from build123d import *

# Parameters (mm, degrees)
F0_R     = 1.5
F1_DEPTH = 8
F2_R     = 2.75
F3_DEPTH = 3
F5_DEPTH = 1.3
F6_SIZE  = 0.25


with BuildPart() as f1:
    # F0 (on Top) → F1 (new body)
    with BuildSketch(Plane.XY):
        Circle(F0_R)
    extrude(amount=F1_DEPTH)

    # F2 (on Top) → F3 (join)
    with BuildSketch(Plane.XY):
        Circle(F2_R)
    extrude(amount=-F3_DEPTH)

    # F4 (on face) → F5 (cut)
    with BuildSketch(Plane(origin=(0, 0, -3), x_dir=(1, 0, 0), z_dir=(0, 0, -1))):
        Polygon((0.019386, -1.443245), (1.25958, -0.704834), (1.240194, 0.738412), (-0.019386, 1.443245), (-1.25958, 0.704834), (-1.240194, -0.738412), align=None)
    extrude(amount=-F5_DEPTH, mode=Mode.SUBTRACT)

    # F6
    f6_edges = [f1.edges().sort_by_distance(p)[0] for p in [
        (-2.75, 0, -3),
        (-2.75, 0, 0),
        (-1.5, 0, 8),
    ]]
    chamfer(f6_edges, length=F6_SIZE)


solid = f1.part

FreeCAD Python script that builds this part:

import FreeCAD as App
import Part
import Sketcher
from FreeCAD import Vector


def edges_at(feature, points):
    """Names of the edges that pass closest to the given points."""
    edges = feature.Shape.Edges
    near = lambda p: min(range(len(edges)), key=lambda i: edges[i].distToShape(Part.Vertex(*p))[0])
    return sorted({f"Edge{near(p) + 1}" for p in points})


def add_polygon(sketch, points):
    """Adds a closed chain of lines whose ends are joined by coincident constraints."""
    first, n = sketch.GeometryCount, len(points)
    for a, b in zip(points, points[1:] + points[:1]):
        sketch.addGeometry(Part.LineSegment(App.Vector(*a, 0), App.Vector(*b, 0)), False)
    for i in range(n):
        sketch.addConstraint(Sketcher.Constraint("Coincident", first + i, 2, first + (i + 1) % n, 1))

doc = App.newDocument("Part")
body = doc.addObject("PartDesign::Body", "Body")

# Sketch on XY plane
sketch1 = body.newObject("Sketcher::SketchObject", "Sketch")
sketch1.AttachmentSupport = (doc.getObject("XY_Plane"), [""])
sketch1.MapMode = "FlatFace"
sketch1.addGeometry(Part.Circle(Vector(0, 0, 0), Vector(0, 0, 1), 1.5), False)
sketch1.addConstraint([
    Sketcher.Constraint("Coincident", 0, 3, -1, 1),
    Sketcher.Constraint("Diameter", 0, 3.0),
])
pad1 = body.newObject("PartDesign::Pad", "Pad")
pad1.Profile = sketch1
pad1.Length = 8

# Sketch on XY plane
sketch2 = body.newObject("Sketcher::SketchObject", "Sketch001")
sketch2.AttachmentSupport = (doc.getObject("XY_Plane"), [""])
sketch2.MapMode = "FlatFace"
sketch2.addGeometry(Part.Circle(Vector(0, 0, 0), Vector(0, 0, 1), 2.8), False)
sketch2.addConstraint([
    Sketcher.Constraint("Coincident", 0, 3, -1, 1),
    Sketcher.Constraint("Diameter", 0, 5.5),
])
pad2 = body.newObject("PartDesign::Pad", "Pad001")
pad2.Profile = sketch2
pad2.Length = 3
pad2.Reversed = True

# Sketch on XY plane
sketch3 = body.newObject("Sketcher::SketchObject", "Sketch002")
sketch3.AttachmentSupport = (doc.getObject("XY_Plane"), [""])
sketch3.MapMode = "FlatFace"
sketch3.AttachmentOffset = App.Placement(Vector(0, 0, -3), App.Rotation())
add_polygon(sketch3, [(0, 1.4), (1.3, 0.7), (1.2, -0.7), (0, -1.4), (-1.3, -0.7), (-1.2, 0.7)])  # lines 0-5
sketch3.addConstraint([
    Sketcher.Constraint("Symmetric", 0, 2, 3, 2, -1, 1),
    Sketcher.Constraint("Symmetric", 1, 2, 4, 2, -1, 1),
    Sketcher.Constraint("Symmetric", 2, 2, 5, 2, -1, 1),
    Sketcher.Constraint("Equal", 0, 1),
    Sketcher.Constraint("Equal", 1, 2),
    Sketcher.Constraint("DistanceX", -1, 1, 0, 2, 1.25958),
    Sketcher.Constraint("DistanceY", 1, 2, -1, 1, 0.738412),
    Sketcher.Constraint("DistanceX", 2, 2, 1, 2, 1.25958),
    Sketcher.Constraint("DistanceY", 2, 2, 0, 2, 2.148079),
])
pocket1 = body.newObject("PartDesign::Pocket", "Pocket")
pocket1.Profile = sketch3
pocket1.Length = 1.3
pocket1.Reversed = True
doc.recompute()

chamfer = body.newObject("PartDesign::Chamfer", "Chamfer")
chamfer.Base = (pocket1, edges_at(pocket1, [(-2.75, 0, -3), (-2.75, 0, 0), (-1.5, 0, 8)]))
chamfer.Size = 0.25

doc.recompute()
